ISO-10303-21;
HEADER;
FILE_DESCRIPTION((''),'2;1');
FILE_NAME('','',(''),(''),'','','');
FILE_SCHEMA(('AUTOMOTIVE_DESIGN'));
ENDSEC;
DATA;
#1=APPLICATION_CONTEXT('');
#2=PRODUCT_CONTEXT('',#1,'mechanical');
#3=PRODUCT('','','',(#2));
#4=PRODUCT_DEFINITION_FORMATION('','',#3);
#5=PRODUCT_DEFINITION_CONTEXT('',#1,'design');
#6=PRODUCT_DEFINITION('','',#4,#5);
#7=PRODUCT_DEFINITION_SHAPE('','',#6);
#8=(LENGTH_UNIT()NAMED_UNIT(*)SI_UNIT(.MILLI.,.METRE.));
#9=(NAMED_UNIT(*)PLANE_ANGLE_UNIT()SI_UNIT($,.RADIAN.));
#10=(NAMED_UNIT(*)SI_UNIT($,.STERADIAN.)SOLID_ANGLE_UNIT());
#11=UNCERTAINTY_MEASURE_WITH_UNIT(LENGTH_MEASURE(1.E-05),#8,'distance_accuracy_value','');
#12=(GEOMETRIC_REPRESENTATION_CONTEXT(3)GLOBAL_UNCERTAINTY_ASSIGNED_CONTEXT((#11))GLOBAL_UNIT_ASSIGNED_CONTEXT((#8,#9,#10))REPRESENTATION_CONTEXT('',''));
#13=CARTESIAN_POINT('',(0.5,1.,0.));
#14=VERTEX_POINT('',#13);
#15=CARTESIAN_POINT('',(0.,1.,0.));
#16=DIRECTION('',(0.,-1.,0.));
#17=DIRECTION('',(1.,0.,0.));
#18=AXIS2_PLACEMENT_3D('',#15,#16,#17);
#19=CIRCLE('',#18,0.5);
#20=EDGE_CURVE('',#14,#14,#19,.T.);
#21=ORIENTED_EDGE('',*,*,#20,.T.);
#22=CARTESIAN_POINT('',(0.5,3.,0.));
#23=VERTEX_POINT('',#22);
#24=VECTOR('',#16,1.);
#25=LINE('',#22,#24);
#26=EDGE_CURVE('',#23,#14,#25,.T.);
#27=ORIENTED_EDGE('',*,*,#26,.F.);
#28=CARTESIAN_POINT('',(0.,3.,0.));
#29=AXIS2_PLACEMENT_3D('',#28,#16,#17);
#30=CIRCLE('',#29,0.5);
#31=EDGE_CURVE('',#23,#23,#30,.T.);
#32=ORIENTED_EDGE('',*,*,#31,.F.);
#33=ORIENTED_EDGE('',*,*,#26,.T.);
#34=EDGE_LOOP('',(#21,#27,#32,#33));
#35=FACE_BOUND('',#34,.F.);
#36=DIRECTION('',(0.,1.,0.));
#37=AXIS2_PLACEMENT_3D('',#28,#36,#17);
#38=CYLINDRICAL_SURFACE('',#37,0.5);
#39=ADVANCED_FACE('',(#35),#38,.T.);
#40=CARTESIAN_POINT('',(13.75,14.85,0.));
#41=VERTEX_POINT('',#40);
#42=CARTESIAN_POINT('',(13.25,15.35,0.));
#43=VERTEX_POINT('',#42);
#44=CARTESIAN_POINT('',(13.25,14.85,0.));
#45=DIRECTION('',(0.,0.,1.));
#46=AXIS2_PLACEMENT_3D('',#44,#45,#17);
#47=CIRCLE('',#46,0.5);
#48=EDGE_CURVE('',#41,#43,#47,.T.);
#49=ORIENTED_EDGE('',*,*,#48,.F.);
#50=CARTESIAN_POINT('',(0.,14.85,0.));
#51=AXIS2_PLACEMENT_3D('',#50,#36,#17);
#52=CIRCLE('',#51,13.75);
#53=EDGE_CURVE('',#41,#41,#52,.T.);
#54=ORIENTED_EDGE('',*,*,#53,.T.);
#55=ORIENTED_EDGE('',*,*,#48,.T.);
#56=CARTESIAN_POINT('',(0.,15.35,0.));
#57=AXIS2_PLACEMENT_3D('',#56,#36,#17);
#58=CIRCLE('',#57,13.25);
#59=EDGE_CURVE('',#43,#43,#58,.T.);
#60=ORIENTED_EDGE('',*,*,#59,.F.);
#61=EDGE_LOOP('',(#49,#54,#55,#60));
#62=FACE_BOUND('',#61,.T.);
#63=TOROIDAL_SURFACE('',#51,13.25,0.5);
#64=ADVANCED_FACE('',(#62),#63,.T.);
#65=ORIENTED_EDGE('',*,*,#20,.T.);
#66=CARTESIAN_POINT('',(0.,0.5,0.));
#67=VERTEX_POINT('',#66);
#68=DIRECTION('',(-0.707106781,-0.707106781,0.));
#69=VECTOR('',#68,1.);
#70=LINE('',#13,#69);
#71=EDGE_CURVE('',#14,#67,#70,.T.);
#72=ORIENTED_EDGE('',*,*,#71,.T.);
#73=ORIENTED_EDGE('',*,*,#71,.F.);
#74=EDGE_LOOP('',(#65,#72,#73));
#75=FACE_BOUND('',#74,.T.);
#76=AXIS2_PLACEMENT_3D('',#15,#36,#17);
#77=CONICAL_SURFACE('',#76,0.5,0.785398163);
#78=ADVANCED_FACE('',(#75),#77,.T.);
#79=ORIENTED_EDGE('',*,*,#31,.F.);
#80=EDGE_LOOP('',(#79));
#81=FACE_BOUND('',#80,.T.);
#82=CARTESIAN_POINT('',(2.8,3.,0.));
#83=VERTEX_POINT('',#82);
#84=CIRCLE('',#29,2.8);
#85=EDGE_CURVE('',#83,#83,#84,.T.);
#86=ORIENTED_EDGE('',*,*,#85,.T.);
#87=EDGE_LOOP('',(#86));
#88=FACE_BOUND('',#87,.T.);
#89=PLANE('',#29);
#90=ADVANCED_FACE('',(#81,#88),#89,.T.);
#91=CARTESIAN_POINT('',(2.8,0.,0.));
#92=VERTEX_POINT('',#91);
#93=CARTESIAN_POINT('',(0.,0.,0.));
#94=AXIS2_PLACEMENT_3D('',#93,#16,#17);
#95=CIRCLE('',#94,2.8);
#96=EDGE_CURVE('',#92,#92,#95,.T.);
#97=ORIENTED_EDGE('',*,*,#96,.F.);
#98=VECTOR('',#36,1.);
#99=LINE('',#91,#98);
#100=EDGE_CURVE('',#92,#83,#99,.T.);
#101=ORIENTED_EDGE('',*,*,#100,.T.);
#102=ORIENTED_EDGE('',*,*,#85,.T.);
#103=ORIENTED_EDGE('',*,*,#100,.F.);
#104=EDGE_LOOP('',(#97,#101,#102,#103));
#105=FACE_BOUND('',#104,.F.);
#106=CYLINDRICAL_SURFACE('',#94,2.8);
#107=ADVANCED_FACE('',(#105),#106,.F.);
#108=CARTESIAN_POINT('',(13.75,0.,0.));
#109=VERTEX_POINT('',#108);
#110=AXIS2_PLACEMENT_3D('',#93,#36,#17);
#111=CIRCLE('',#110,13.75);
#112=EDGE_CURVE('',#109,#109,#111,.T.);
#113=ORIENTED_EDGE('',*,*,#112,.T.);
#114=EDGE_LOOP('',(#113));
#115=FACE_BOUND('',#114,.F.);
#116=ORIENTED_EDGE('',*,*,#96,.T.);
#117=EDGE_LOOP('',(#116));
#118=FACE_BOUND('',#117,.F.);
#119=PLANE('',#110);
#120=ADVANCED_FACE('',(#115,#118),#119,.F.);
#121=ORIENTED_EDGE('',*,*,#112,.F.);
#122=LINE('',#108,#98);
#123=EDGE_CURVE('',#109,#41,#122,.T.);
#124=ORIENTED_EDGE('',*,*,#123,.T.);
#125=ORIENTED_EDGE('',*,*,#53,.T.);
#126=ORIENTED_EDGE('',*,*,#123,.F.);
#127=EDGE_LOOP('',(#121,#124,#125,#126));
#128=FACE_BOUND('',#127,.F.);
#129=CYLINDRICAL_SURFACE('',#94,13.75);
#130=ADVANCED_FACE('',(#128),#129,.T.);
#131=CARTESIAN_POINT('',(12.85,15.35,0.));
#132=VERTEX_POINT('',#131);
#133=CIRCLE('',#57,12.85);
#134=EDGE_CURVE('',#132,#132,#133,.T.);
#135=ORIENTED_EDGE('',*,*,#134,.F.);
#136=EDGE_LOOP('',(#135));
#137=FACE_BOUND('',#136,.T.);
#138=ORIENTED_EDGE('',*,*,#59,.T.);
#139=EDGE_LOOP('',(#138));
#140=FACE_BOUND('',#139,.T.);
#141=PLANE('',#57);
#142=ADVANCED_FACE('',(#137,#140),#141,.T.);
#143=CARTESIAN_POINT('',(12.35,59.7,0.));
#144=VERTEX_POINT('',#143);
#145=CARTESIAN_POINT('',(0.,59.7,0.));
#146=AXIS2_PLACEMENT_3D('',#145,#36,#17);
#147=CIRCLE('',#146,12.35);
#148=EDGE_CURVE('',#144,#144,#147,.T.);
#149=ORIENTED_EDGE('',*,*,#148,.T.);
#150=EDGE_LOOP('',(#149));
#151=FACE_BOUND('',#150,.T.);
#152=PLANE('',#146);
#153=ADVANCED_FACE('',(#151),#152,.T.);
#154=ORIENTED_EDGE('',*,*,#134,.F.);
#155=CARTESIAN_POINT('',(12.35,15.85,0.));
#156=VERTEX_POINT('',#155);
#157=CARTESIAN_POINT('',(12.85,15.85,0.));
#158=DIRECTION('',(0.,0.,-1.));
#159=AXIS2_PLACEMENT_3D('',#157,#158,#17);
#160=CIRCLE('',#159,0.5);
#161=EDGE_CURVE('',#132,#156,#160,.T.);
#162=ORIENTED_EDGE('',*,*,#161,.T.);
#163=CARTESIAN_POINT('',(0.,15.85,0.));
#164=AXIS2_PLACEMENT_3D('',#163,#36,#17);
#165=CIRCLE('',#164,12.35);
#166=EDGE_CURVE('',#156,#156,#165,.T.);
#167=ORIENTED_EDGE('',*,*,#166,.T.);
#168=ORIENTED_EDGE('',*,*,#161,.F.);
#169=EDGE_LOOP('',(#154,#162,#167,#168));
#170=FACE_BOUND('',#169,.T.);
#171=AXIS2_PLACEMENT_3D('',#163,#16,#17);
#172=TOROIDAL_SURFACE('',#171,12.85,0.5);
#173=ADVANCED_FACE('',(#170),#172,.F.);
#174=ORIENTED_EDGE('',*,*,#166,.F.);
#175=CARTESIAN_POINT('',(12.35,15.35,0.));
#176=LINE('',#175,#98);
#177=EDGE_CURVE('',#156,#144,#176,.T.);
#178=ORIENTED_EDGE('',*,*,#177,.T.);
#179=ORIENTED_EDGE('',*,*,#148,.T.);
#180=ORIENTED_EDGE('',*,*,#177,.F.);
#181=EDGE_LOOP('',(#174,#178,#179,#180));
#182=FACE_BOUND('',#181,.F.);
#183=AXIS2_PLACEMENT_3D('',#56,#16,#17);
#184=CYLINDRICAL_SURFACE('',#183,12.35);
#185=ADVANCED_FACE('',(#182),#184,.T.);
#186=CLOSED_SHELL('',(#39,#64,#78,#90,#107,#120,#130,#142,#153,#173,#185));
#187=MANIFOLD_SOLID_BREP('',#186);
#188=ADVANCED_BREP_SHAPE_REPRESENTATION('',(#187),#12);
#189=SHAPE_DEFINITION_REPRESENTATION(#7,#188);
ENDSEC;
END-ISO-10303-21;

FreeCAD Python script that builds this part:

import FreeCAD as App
import Part
import Sketcher

V = App.Vector
Q = App.Units.Quantity


def edges_at(feature, points):
    """Names of the edges that pass closest to the given points."""
    edges = feature.Shape.Edges
    near = lambda p: min(range(len(edges)), key=lambda i: edges[i].distToShape(Part.Vertex(*p))[0])
    return sorted({f"Edge{near(p) + 1}" for p in points})

doc = App.newDocument("Part")
body = doc.addObject("PartDesign::Body", "Body")

sketch1 = doc.addObject("Sketcher::SketchObject", "Sketch")
body.addObject(sketch1)
sketch1.AttachmentSupport = (doc.XZ_Plane, [""])
sketch1.MapMode = "FlatFace"
sketch1.addGeometry(Part.Circle(V(0, 0, 0), V(0, 0, 1), 13.75), False)
sketch1.addConstraint([
    Sketcher.Constraint("Coincident", 0, 3, -1, 1),
    Sketcher.Constraint("Diameter", 0, Q("27.5 mm")),
])
pad1 = doc.addObject("PartDesign::Pad", "Pad")
body.addObject(pad1)
pad1.Profile = sketch1
pad1.Length = 15.35
pad1.Reversed = True

sketch2 = doc.addObject("Sketcher::SketchObject", "Sketch001")
body.addObject(sketch2)
sketch2.AttachmentSupport = (doc.XZ_Plane, [""])
sketch2.MapMode = "FlatFace"
sketch2.AttachmentOffset = App.Placement(V(0, 0, -15.35), App.Rotation())
sketch2.addGeometry(Part.Circle(V(0, 0, 0), V(0, 0, 1), 12.35), False)
sketch2.addConstraint([
    Sketcher.Constraint("Coincident", 0, 3, -1, 1),
    Sketcher.Constraint("Diameter", 0, Q("24.7 mm")),
])
pad2 = doc.addObject("PartDesign::Pad", "Pad001")
body.addObject(pad2)
pad2.Profile = sketch2
pad2.Length = 44.35
pad2.Reversed = True
doc.recompute()

fillet = doc.addObject("PartDesign::Fillet", "Fillet")
body.addObject(fillet)
fillet.Base = (pad2, edges_at(pad2, [(-13.75, 15.35, 0), (-12.35, 15.35, 0)]))
fillet.Radius = 0.5

sketch3 = doc.addObject("Sketcher::SketchObject", "Sketch002")
body.addObject(sketch3)
sketch3.AttachmentSupport = (doc.XZ_Plane, [""])
sketch3.MapMode = "FlatFace"
sketch3.addGeometry(Part.Circle(V(0, 0, 0), V(0, 0, 1), 2.8), False)
sketch3.addConstraint([
    Sketcher.Constraint("Coincident", 0, 3, -1, 1),
    Sketcher.Constraint("Diameter", 0, Q("5.6 mm")),
])
pocket1 = doc.addObject("PartDesign::Pocket", "Pocket")
body.addObject(pocket1)
pocket1.Profile = sketch3
pocket1.Length = 3

sketch4 = doc.addObject("Sketcher::SketchObject", "Sketch003")
body.addObject(sketch4)
sketch4.AttachmentSupport = (doc.XZ_Plane, [""])
sketch4.MapMode = "FlatFace"
sketch4.AttachmentOffset = App.Placement(V(0, 0, -3), App.Rotation())
sketch4.addGeometry(Part.Circle(V(0, 0, 0), V(0, 0, 1), 0.5), False)
sketch4.addConstraint([
    Sketcher.Constraint("Coincident", 0, 3, -1, 1),
    Sketcher.Constraint("Diameter", 0, Q("1 mm")),
])
pad3 = doc.addObject("PartDesign::Pad", "Pad002")
body.addObject(pad3)
pad3.Profile = sketch4
pad3.Length = 2.5
doc.recompute()

chamfer = doc.addObject("PartDesign::Chamfer", "Chamfer")
body.addObject(chamfer)
chamfer.Base = (pad3, edges_at(pad3, [(-0.5, 0.5, 0)]))
chamfer.Size = 0.5

doc.recompute()
